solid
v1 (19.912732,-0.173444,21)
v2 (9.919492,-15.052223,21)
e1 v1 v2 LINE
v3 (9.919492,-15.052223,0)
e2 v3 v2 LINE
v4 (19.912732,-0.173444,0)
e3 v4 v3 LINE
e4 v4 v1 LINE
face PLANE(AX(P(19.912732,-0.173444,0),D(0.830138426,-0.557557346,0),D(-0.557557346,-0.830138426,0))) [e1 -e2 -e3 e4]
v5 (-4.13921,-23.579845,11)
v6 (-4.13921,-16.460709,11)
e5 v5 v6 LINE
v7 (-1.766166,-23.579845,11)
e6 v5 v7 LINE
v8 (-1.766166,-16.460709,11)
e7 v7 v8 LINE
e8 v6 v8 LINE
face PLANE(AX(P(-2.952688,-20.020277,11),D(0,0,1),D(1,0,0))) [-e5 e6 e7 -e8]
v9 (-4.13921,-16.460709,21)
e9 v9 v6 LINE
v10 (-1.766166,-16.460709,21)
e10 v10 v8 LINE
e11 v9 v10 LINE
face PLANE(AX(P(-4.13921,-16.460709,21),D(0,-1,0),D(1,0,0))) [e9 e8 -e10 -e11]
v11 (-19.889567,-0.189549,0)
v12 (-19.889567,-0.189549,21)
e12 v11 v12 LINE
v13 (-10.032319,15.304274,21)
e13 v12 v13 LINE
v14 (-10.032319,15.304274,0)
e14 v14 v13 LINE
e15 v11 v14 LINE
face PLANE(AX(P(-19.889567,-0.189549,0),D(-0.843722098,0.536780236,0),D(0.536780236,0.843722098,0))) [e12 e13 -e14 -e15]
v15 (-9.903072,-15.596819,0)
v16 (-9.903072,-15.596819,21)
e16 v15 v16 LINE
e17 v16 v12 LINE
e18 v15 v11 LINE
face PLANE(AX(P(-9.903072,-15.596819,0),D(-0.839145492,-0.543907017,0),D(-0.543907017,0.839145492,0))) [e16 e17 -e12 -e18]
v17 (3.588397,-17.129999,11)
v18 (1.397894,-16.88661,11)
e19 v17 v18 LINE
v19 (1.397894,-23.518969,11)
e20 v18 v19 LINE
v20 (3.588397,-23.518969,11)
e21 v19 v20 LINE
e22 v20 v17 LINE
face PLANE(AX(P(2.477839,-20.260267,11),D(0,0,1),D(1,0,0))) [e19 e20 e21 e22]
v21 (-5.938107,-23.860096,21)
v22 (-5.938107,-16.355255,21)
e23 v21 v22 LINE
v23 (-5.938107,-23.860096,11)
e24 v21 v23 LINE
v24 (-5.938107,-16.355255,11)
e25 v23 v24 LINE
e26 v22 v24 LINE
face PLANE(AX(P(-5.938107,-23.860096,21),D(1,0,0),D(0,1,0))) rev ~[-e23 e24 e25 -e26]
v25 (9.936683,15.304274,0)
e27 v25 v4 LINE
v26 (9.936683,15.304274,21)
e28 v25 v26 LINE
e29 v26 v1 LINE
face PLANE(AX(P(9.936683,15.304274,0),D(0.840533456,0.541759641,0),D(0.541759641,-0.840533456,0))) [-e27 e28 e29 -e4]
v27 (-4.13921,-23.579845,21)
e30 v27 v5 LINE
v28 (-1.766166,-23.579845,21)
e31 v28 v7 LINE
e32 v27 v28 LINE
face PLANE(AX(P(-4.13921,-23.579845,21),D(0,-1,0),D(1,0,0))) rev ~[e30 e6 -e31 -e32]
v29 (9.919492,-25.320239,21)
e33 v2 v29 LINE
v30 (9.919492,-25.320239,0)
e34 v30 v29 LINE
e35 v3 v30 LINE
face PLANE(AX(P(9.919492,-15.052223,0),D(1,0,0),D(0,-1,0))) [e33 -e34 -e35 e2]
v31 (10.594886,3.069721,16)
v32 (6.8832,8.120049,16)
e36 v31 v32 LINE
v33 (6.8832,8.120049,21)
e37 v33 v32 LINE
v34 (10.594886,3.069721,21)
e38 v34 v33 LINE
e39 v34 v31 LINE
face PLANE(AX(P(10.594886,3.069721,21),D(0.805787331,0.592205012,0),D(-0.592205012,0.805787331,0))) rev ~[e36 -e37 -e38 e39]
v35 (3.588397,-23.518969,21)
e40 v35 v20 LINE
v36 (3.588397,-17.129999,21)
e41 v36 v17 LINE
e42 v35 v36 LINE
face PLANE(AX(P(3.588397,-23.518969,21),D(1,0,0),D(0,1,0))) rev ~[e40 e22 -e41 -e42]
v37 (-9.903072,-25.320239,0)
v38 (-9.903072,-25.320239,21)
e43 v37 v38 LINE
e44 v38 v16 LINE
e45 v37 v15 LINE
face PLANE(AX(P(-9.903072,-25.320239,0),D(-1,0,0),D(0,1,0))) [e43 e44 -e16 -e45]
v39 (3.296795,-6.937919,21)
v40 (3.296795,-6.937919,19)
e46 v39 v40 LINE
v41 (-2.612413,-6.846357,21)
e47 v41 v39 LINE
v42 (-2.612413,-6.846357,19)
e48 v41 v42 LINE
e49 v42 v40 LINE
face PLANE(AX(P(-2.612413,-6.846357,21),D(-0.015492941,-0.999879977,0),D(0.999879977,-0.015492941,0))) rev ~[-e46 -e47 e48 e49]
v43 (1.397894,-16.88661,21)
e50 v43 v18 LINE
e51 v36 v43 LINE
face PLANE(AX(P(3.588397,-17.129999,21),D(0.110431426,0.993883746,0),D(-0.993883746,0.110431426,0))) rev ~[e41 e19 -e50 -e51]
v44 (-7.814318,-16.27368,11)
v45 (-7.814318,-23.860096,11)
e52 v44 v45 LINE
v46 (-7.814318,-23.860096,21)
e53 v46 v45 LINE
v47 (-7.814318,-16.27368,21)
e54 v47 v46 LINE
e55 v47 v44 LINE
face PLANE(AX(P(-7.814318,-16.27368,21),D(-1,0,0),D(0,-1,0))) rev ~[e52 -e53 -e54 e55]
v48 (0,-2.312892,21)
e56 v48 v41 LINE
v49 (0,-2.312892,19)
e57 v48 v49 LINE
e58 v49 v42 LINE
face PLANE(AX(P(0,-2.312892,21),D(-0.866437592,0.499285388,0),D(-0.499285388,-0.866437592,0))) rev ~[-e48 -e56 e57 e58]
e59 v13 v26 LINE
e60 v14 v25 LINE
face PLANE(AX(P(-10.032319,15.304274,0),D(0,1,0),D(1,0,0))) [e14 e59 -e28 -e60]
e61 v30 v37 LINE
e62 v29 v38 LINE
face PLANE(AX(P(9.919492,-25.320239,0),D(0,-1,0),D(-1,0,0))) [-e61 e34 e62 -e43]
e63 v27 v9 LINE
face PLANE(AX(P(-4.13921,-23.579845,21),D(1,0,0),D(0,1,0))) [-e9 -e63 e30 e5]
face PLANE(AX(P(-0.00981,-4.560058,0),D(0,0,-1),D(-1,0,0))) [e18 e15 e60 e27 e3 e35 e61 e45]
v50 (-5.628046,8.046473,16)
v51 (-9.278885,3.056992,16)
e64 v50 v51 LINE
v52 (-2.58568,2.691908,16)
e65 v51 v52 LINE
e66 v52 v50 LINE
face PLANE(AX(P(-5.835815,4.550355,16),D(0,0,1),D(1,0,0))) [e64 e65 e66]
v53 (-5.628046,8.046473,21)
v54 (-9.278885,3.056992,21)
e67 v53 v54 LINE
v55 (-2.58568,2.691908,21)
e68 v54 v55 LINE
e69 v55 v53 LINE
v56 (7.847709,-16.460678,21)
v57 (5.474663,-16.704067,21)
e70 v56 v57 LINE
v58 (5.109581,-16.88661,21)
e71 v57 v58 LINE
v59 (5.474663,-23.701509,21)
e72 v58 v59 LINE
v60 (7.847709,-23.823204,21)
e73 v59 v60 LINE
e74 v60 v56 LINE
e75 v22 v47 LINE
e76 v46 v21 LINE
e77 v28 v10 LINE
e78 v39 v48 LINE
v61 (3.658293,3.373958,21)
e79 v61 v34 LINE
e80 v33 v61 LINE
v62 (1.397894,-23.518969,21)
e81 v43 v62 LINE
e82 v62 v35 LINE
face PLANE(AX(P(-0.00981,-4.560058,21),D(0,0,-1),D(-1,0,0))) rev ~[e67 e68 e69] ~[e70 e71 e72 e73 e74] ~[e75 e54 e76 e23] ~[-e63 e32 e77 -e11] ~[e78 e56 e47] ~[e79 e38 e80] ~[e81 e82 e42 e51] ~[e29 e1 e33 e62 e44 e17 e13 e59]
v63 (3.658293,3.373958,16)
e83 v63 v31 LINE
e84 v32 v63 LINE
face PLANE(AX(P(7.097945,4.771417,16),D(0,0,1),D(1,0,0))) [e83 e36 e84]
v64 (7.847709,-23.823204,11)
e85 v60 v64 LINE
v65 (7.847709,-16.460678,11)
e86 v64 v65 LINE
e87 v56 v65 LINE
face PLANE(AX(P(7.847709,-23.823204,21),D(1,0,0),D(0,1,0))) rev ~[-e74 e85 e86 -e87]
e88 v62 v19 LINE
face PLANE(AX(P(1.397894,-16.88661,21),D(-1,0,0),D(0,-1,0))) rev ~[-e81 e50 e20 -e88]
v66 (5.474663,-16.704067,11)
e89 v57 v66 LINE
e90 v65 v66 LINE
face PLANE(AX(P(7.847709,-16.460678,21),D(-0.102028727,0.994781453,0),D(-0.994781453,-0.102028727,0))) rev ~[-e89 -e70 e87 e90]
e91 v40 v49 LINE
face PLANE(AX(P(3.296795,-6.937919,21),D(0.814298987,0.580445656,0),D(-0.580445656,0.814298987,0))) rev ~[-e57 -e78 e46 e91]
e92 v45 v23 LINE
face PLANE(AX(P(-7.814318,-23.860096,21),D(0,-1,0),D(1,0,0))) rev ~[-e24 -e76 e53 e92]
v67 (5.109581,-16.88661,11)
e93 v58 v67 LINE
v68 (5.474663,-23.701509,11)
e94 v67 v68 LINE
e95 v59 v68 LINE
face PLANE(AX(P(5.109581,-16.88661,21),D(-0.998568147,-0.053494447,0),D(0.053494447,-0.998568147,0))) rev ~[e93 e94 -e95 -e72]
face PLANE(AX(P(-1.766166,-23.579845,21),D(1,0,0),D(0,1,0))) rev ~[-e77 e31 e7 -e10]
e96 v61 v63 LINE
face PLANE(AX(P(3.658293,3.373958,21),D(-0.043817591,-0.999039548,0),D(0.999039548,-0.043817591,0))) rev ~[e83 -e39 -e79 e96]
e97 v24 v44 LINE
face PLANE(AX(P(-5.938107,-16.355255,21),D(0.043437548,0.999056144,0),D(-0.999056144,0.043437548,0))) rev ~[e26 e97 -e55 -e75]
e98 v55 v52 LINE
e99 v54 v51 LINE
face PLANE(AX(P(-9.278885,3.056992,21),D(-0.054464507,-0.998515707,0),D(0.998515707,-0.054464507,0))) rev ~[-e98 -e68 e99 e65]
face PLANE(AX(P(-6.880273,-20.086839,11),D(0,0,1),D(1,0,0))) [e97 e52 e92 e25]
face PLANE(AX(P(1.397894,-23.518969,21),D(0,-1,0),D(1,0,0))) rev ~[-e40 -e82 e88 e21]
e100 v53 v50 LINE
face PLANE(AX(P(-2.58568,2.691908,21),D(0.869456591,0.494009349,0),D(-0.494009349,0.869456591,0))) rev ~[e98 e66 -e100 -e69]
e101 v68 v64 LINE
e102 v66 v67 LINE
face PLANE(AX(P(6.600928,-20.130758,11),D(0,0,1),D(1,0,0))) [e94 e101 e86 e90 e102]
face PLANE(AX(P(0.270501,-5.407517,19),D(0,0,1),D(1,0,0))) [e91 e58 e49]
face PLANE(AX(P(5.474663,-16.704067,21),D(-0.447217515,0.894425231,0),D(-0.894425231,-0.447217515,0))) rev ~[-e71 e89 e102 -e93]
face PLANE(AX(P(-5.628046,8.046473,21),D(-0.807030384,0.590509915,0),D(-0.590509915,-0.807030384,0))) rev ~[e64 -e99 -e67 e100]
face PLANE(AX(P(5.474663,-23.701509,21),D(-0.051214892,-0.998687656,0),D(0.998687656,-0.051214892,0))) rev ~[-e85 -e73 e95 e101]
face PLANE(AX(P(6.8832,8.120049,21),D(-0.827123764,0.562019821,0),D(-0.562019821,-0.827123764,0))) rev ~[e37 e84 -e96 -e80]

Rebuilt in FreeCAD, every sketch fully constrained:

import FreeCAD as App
import Part
import Sketcher

V = App.Vector
Q = App.Units.Quantity

doc = App.newDocument("Part")
body = doc.addObject("PartDesign::Body", "Body")

sketch1 = body.newObject("Sketcher::SketchObject", "Sketch")
sketch1.AttachmentSupport = (doc.getObject("XY_Plane"), [""])
sketch1.MapMode = "FlatFace"
sketch1.addGeometry([
    Part.LineSegment(V(10, 15, 0), V(-10, 15, 0)),
    Part.LineSegment(V(-10, 15, 0), V(-20, 0, 0)),
    Part.LineSegment(V(-20, 0, 0), V(-10, -16, 0)),
    Part.LineSegment(V(-10, -16, 0), V(-10, -25, 0)),
    Part.LineSegment(V(-10, -25, 0), V(10, -25, 0)),
    Part.LineSegment(V(10, -25, 0), V(10, -15, 0)),
    Part.LineSegment(V(10, -15, 0), V(20, 0, 0)),
    Part.LineSegment(V(20, 0, 0), V(10, 15, 0)),
], False)
sketch1.addConstraint([
    Sketcher.Constraint("Coincident", 0, 2, 1, 1),
    Sketcher.Constraint("Coincident", 1, 2, 2, 1),
    Sketcher.Constraint("Coincident", 2, 2, 3, 1),
    Sketcher.Constraint("Coincident", 3, 2, 4, 1),
    Sketcher.Constraint("Coincident", 4, 2, 5, 1),
    Sketcher.Constraint("Coincident", 5, 2, 6, 1),
    Sketcher.Constraint("Coincident", 6, 2, 7, 1),
    Sketcher.Constraint("Coincident", 7, 2, 0, 1),
    Sketcher.Constraint("Horizontal", 0),
    Sketcher.Constraint("Vertical", 3),
    Sketcher.Constraint("Horizontal", 4),
    Sketcher.Constraint("Vertical", 5),
    Sketcher.Constraint("Angle", 2, Q("-57.049995 deg")),
    Sketcher.Constraint("DistanceX", 0, 2, 0, 1, 19.969002),
    Sketcher.Constraint("DistanceY", 3, 2, 3, 1, 9.72342),
    Sketcher.Constraint("Distance", 6, 17.923251),
    Sketcher.Constraint("Distance", 7, 18.414161),
    Sketcher.Constraint("DistanceX", 4, 1, 4, 2, 19.822564),
    Sketcher.Constraint("DistanceY", 5, 1, 5, 2, 10.268016),
    Sketcher.Constraint("DistanceX", 0, 2, -1, 1, 10.032319),
    Sketcher.Constraint("DistanceY", 1, 2, -1, 1, 0.189549),
    Sketcher.Constraint("DistanceY", 2, 2, -1, 1, 15.596819),
    Sketcher.Constraint("DistanceX", -1, 1, 6, 2, 19.912732),
    Sketcher.Constraint("DistanceX", 0, 2, 4, 2, 19.951811),
])
pad1 = body.newObject("PartDesign::Pad", "Pad")
pad1.Profile = sketch1
pad1.Length = 21

sketch2 = body.newObject("Sketcher::SketchObject", "Sketch001")
sketch2.AttachmentSupport = (doc.getObject("XY_Plane"), [""])
sketch2.MapMode = "FlatFace"
sketch2.AttachmentOffset = App.Placement(V(0, 0, 21), App.Rotation())
sketch2.addGeometry([
    Part.LineSegment(V(-6, 8, 0), V(-9, 3, 0)),
    Part.LineSegment(V(-9, 3, 0), V(-3, 3, 0)),
    Part.LineSegment(V(-3, 3, 0), V(-6, 8, 0)),
], False)
sketch2.addConstraint([
    Sketcher.Constraint("Coincident", 0, 2, 1, 1),
    Sketcher.Constraint("Coincident", 1, 2, 2, 1),
    Sketcher.Constraint("Coincident", 2, 2, 0, 1),
    Sketcher.Constraint("Distance", 0, 6.182519),
    Sketcher.Constraint("Distance", 2, 6.158519),
    Sketcher.Constraint("DistanceX", 1, 2, -1, 1, 2.58568),
    Sketcher.Constraint("DistanceY", -1, 1, 1, 2, 2.691908),
    Sketcher.Constraint("DistanceX", 0, 2, 2, 2, 3.650839),
    Sketcher.Constraint("Distance", 1, 6.703154),
])
pocket1 = body.newObject("PartDesign::Pocket", "Pocket")
pocket1.Profile = sketch2
pocket1.Length = 5

sketch3 = body.newObject("Sketcher::SketchObject", "Sketch002")
sketch3.AttachmentSupport = (doc.getObject("XY_Plane"), [""])
sketch3.MapMode = "FlatFace"
sketch3.AttachmentOffset = App.Placement(V(0, 0, 21), App.Rotation())
sketch3.addGeometry([
    Part.LineSegment(V(7, 8, 0), V(4, 3, 0)),
    Part.LineSegment(V(4, 3, 0), V(11, 3, 0)),
    Part.LineSegment(V(11, 3, 0), V(7, 8, 0)),
], False)
sketch3.addConstraint([
    Sketcher.Constraint("Coincident", 0, 2, 1, 1),
    Sketcher.Constraint("Coincident", 1, 2, 2, 1),
    Sketcher.Constraint("Coincident", 2, 2, 0, 1),
    Sketcher.Constraint("DistanceX", -1, 1, 2, 2, 6.8832),
    Sketcher.Constraint("Distance", 1, 6.943262),
    Sketcher.Constraint("Distance", 2, 6.267569),
    Sketcher.Constraint("DistanceY", -1, 1, 0, 2, 3.373958),
    Sketcher.Constraint("DistanceY", -1, 1, 1, 2, 3.069721),
    Sketcher.Constraint("DistanceY", -1, 1, 2, 2, 8.120049),
])
pocket2 = body.newObject("PartDesign::Pocket", "Pocket001")
pocket2.Profile = sketch3
pocket2.Length = 5

sketch4 = body.newObject("Sketcher::SketchObject", "Sketch003")
sketch4.AttachmentSupport = (doc.getObject("XY_Plane"), [""])
sketch4.MapMode = "FlatFace"
sketch4.AttachmentOffset = App.Placement(V(0, 0, 21), App.Rotation())
sketch4.addGeometry([
    Part.LineSegment(V(-7.8, -23.9, 0), V(-5.9, -23.9, 0)),
    Part.LineSegment(V(-5.9, -23.9, 0), V(-5.9, -16.4, 0)),
    Part.LineSegment(V(-5.9, -16.4, 0), V(-7.8, -16.3, 0)),
    Part.LineSegment(V(-7.8, -16.3, 0), V(-7.8, -23.9, 0)),
], False)
sketch4.addConstraint([
    Sketcher.Constraint("Coincident", 0, 2, 1, 1),
    Sketcher.Constraint("Coincident", 1, 2, 2, 1),
    Sketcher.Constraint("Coincident", 2, 2, 3, 1),
    Sketcher.Constraint("Coincident", 3, 2, 0, 1),
    Sketcher.Constraint("Horizontal", 0),
    Sketcher.Constraint("Vertical", 1),
    Sketcher.Constraint("Vertical", 3),
    Sketcher.Constraint("DistanceX", 0, 1, 0, 2, 1.876211),
    Sketcher.Constraint("DistanceY", 1, 1, 1, 2, 7.504841),
    Sketcher.Constraint("DistanceY", 3, 2, 3, 1, 7.586416),
    Sketcher.Constraint("DistanceY", 2, 2, -1, 1, 16.27368),
    Sketcher.Constraint("DistanceX", 0, 2, -1, 1, 5.938107),
])
pocket3 = body.newObject("PartDesign::Pocket", "Pocket002")
pocket3.Profile = sketch4
pocket3.Length = 10

sketch5 = body.newObject("Sketcher::SketchObject", "Sketch004")
sketch5.AttachmentSupport = (doc.getObject("XY_Plane"), [""])
sketch5.MapMode = "FlatFace"
sketch5.AttachmentOffset = App.Placement(V(0, 0, 21), App.Rotation())
sketch5.addGeometry([
    Part.LineSegment(V(-4.1, -16.5, 0), V(-4.1, -23.6, 0)),
    Part.LineSegment(V(-4.1, -23.6, 0), V(-1.8, -23.6, 0)),
    Part.LineSegment(V(-1.8, -23.6, 0), V(-1.8, -16.5, 0)),
    Part.LineSegment(V(-1.8, -16.5, 0), V(-4.1, -16.5, 0)),
], False)
sketch5.addConstraint([
    Sketcher.Constraint("Coincident", 0, 2, 1, 1),
    Sketcher.Constraint("Coincident", 1, 2, 2, 1),
    Sketcher.Constraint("Coincident", 2, 2, 3, 1),
    Sketcher.Constraint("Coincident", 3, 2, 0, 1),
    Sketcher.Constraint("Vertical", 0),
    Sketcher.Constraint("Horizontal", 1),
    Sketcher.Constraint("Vertical", 2),
    Sketcher.Constraint("Horizontal", 3),
    Sketcher.Constraint("DistanceX", 1, 1, 1, 2, 2.373045),
    Sketcher.Constraint("DistanceY", 0, 2, 0, 1, 7.119136),
    Sketcher.Constraint("DistanceX", 0, 2, -1, 1, 4.13921),
    Sketcher.Constraint("DistanceY", 2, 2, -1, 1, 16.460709),
])
pocket4 = body.newObject("PartDesign::Pocket", "Pocket003")
pocket4.Profile = sketch5
pocket4.Length = 10

sketch6 = body.newObject("Sketcher::SketchObject", "Sketch005")
sketch6.AttachmentSupport = (doc.getObject("XY_Plane"), [""])
sketch6.MapMode = "FlatFace"
sketch6.AttachmentOffset = App.Placement(V(0, 0, 21), App.Rotation())
sketch6.addGeometry([
    Part.LineSegment(V(1.4, -16.9, 0), V(1.4, -23.5, 0)),
    Part.LineSegment(V(1.4, -23.5, 0), V(3.6, -23.5, 0)),
    Part.LineSegment(V(3.6, -23.5, 0), V(3.6, -17.1, 0)),
    Part.LineSegment(V(3.6, -17.1, 0), V(1.4, -16.9, 0)),
], False)
sketch6.addConstraint([
    Sketcher.Constraint("Coincident", 0, 2, 1, 1),
    Sketcher.Constraint("Coincident", 1, 2, 2, 1),
    Sketcher.Constraint("Coincident", 2, 2, 3, 1),
    Sketcher.Constraint("Coincident", 3, 2, 0, 1),
    Sketcher.Constraint("Vertical", 0),
    Sketcher.Constraint("Horizontal", 1),
    Sketcher.Constraint("Vertical", 2),
    Sketcher.Constraint("DistanceY", 2, 2, -1, 1, 17.129999),
    Sketcher.Constraint("DistanceY", 0, 2, 0, 1, 6.632359),
    Sketcher.Constraint("DistanceY", 2, 1, 2, 2, 6.38897),
    Sketcher.Constraint("DistanceX", 1, 1, 1, 2, 2.190503),
    Sketcher.Constraint("DistanceX", -1, 1, 0, 2, 1.397894),
])
pocket5 = body.newObject("PartDesign::Pocket", "Pocket004")
pocket5.Profile = sketch6
pocket5.Length = 10

sketch7 = body.newObject("Sketcher::SketchObject", "Sketch006")
sketch7.AttachmentSupport = (doc.getObject("XY_Plane"), [""])
sketch7.MapMode = "FlatFace"
sketch7.AttachmentOffset = App.Placement(V(0, 0, 21), App.Rotation())
sketch7.addGeometry([
    Part.LineSegment(V(5.11, -16.89, 0), V(5.47, -23.7, 0)),
    Part.LineSegment(V(5.47, -23.7, 0), V(7.85, -23.82, 0)),
    Part.LineSegment(V(7.85, -23.82, 0), V(7.85, -16.46, 0)),
    Part.LineSegment(V(7.85, -16.46, 0), V(5.47, -16.7, 0)),
    Part.LineSegment(V(5.47, -16.7, 0), V(5.11, -16.89, 0)),
], False)
sketch7.addConstraint([
    Sketcher.Constraint("Coincident", 0, 2, 1, 1),
    Sketcher.Constraint("Coincident", 1, 2, 2, 1),
    Sketcher.Constraint("Coincident", 2, 2, 3, 1),
    Sketcher.Constraint("Coincident", 3, 2, 4, 1),
    Sketcher.Constraint("Coincident", 4, 2, 0, 1),
    Sketcher.Constraint("Vertical", 2),
    Sketcher.Constraint("Vertical", 0, 2, 3, 2),
    Sketcher.Constraint("DistanceY", 0, 2, 4, 2, 6.814899),
    Sketcher.Constraint("Distance", 0, 6.824671),
    Sketcher.Constraint("DistanceY", 2, 1, 2, 2, 7.362526),
    Sketcher.Constraint("DistanceY", 0, 2, -1, 1, 23.701509),
    Sketcher.Constraint("DistanceX", -1, 1, 1, 2, 7.847709),
    Sketcher.Constraint("DistanceY", 2, 2, -1, 1, 16.460678),
    Sketcher.Constraint("DistanceX", -1, 1, 4, 2, 5.109581),
    Sketcher.Constraint("DistanceY", 3, 2, 2, 2, 0.243389),
])
pocket6 = body.newObject("PartDesign::Pocket", "Pocket005")
pocket6.Profile = sketch7
pocket6.Length = 10

sketch8 = body.newObject("Sketcher::SketchObject", "Sketch007")
sketch8.AttachmentSupport = (doc.getObject("XY_Plane"), [""])
sketch8.MapMode = "FlatFace"
sketch8.AttachmentOffset = App.Placement(V(0, 0, 21), App.Rotation())
sketch8.addGeometry([
    Part.LineSegment(V(0, -2, 0), V(-3, -7, 0)),
    Part.LineSegment(V(-3, -7, 0), V(3, -7, 0)),
    Part.LineSegment(V(3, -7, 0), V(0, -2, 0)),
], False)
sketch8.addConstraint([
    Sketcher.Constraint("Coincident", 0, 2, 1, 1),
    Sketcher.Constraint("Coincident", 1, 2, 2, 1),
    Sketcher.Constraint("Coincident", 2, 2, 0, 1),
    Sketcher.Constraint("PointOnObject", 2, 2, -2),
    Sketcher.Constraint("DistanceY", 1, 2, -1, 1, 6.937919),
    Sketcher.Constraint("DistanceY", 1, 2, 0, 2, 0.091562),
    Sketcher.Constraint("Distance", 0, 5.232304),
    Sketcher.Constraint("Distance", 1, 5.909917),
    Sketcher.Constraint("Distance", 2, 5.679765),
])
pocket7 = body.newObject("PartDesign::Pocket", "Pocket006")
pocket7.Profile = sketch8
pocket7.Length = 2

doc.recompute()
